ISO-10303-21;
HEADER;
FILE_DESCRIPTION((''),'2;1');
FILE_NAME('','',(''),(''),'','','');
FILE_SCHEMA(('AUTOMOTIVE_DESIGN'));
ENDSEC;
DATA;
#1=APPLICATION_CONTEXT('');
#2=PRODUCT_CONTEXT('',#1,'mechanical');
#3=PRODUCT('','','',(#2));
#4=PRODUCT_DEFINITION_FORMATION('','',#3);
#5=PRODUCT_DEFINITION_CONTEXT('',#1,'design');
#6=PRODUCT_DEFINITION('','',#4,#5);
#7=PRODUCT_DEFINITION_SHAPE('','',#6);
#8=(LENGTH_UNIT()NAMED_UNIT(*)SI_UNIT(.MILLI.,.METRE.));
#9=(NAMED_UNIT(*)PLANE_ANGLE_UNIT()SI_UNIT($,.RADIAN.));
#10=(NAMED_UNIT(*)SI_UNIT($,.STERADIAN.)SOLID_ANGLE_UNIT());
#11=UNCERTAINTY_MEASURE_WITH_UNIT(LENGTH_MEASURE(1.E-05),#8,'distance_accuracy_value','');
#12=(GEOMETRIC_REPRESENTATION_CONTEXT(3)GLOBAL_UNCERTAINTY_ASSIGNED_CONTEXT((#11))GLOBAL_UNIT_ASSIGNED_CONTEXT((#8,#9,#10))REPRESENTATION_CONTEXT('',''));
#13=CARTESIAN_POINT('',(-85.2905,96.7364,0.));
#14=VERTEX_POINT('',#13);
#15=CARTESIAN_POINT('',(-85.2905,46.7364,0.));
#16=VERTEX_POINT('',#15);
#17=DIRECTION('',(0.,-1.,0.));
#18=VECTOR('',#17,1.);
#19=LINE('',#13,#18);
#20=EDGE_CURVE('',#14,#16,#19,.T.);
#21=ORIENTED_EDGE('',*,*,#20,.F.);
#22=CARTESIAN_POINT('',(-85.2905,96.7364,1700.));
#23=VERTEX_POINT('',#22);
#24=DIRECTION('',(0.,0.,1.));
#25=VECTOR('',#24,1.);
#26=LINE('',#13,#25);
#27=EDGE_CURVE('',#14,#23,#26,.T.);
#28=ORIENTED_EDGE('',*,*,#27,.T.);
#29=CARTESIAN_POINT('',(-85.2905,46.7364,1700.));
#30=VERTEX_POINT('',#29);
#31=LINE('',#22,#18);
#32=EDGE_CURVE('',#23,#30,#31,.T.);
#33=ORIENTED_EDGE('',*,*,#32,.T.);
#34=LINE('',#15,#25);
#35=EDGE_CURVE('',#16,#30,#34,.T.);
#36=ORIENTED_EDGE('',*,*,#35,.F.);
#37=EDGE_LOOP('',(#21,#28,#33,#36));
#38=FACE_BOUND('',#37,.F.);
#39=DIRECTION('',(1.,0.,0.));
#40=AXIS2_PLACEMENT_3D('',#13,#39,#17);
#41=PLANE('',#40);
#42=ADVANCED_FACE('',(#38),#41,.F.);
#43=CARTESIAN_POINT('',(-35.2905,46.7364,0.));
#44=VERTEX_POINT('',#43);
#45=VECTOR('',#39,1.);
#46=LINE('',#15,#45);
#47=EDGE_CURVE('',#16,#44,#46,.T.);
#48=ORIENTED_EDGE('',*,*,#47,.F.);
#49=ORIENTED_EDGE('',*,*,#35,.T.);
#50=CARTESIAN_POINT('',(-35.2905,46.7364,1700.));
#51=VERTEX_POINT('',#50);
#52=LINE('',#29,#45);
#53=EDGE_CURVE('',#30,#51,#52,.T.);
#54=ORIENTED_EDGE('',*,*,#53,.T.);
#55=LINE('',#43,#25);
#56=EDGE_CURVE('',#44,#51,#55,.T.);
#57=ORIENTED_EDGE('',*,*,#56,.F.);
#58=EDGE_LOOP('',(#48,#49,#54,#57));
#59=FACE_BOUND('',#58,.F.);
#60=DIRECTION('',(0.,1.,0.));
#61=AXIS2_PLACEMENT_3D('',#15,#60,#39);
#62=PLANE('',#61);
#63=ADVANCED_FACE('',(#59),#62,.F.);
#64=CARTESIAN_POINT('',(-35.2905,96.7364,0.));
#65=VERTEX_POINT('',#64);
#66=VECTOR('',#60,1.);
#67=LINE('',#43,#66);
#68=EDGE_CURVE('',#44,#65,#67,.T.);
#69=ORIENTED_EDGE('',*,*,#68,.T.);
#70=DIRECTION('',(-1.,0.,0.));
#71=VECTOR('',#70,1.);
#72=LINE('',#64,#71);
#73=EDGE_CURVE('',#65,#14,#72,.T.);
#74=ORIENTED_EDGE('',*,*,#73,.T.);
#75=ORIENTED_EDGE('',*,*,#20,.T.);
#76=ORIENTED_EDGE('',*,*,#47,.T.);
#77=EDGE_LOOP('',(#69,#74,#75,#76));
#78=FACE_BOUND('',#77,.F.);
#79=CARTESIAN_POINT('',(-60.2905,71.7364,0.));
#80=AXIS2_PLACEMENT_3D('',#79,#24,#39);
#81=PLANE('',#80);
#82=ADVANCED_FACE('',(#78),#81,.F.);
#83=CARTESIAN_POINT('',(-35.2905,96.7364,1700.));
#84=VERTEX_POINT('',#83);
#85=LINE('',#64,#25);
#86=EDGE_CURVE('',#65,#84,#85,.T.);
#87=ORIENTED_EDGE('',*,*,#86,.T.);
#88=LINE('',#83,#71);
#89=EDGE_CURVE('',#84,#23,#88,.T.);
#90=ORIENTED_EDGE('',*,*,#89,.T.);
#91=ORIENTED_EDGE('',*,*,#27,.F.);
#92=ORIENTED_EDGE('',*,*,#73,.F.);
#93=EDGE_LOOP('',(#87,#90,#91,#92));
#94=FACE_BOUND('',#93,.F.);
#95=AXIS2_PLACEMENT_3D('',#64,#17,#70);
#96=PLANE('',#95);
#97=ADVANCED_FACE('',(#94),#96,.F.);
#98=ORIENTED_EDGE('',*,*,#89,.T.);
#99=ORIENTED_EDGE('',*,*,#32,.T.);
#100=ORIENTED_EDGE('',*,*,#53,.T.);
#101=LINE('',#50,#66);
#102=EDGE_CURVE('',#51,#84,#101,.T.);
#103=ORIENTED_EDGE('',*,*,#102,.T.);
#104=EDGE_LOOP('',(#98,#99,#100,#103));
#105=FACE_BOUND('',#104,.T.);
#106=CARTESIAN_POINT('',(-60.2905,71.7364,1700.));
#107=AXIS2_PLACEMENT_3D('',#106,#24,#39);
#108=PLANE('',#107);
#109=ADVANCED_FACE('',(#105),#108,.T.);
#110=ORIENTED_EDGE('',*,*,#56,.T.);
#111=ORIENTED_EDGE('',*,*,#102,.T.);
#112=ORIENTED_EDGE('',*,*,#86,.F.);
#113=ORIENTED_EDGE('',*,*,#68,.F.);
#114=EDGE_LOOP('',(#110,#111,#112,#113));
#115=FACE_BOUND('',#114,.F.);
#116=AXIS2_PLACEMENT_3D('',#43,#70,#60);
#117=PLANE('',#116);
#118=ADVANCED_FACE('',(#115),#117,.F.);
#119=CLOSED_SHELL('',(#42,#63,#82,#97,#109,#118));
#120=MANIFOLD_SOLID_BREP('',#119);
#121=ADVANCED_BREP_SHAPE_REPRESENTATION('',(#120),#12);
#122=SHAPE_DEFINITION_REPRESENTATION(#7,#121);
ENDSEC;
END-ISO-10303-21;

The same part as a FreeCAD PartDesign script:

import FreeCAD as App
import Part
import Sketcher
from FreeCAD import Vector
Q = App.Units.Quantity

doc = App.newDocument("Part")
body = doc.addObject("PartDesign::Body", "Body")

# Sketch on XY plane
sketch1 = body.newObject("Sketcher::SketchObject", "Sketch")
sketch1.AttachmentSupport = (doc.getObject("XY_Plane"), [""])
sketch1.MapMode = "FlatFace"
sketch1.addGeometry([
    Part.LineSegment(Vector(-85.2905, 96.7364, 0), Vector(-85.2905, 46.7364, 0)),
    Part.LineSegment(Vector(-85.2905, 46.7364, 0), Vector(-35.2905, 46.7364, 0)),
    Part.LineSegment(Vector(-35.2905, 46.7364, 0), Vector(-35.2905, 96.7364, 0)),
    Part.LineSegment(Vector(-35.2905, 96.7364, 0), Vector(-85.2905, 96.7364, 0)),
], False)
sketch1.addConstraint([
    Sketcher.Constraint("Coincident", 0, 2, 1, 1),
    Sketcher.Constraint("Coincident", 1, 2, 2, 1),
    Sketcher.Constraint("Coincident", 2, 2, 3, 1),
    Sketcher.Constraint("Coincident", 3, 2, 0, 1),
    Sketcher.Constraint("Vertical", 0),
    Sketcher.Constraint("Horizontal", 1),
    Sketcher.Constraint("Vertical", 2),
    Sketcher.Constraint("Horizontal", 3),
    Sketcher.Constraint("Equal", 3, 0),
    Sketcher.Constraint("DistanceX", 1, 1, 1, 2, Q("50 mm")),
    Sketcher.Constraint("DistanceX", 0, 2, -1, 1, Q("85.2905 mm")),
    Sketcher.Constraint("DistanceY", -1, 1, 0, 2, Q("46.7364 mm")),
])
pad1 = body.newObject("PartDesign::Pad", "Pad")
pad1.Profile = sketch1
pad1.Length = 1700

doc.recompute()
